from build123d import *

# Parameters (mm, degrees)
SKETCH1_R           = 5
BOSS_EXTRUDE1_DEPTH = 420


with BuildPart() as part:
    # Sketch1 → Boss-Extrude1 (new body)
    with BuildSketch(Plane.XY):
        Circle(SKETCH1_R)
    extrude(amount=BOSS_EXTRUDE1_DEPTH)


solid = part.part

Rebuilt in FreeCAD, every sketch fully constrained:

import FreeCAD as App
import Part
import Sketcher

V = App.Vector
Q = App.Units.Quantity

doc = App.newDocument("Part")
body = doc.addObject("PartDesign::Body", "Body")

sketch1 = body.newObject("Sketcher::SketchObject", "Sketch")
sketch1.AttachmentSupport = (doc.getObject("XY_Plane"), [""])
sketch1.MapMode = "FlatFace"
sketch1.addGeometry(Part.Circle(V(0, 0, 0), V(0, 0, 1), 5), False)
sketch1.addConstraint(Sketcher.Constraint("Coincident", 0, 3, -1, 1))
sketch1.addConstraint(Sketcher.Constraint("Diameter", 0, Q("10 mm")))
pad1 = body.newObject("PartDesign::Pad", "Pad")
pad1.Profile = sketch1
pad1.Length = 420

doc.recompute()
